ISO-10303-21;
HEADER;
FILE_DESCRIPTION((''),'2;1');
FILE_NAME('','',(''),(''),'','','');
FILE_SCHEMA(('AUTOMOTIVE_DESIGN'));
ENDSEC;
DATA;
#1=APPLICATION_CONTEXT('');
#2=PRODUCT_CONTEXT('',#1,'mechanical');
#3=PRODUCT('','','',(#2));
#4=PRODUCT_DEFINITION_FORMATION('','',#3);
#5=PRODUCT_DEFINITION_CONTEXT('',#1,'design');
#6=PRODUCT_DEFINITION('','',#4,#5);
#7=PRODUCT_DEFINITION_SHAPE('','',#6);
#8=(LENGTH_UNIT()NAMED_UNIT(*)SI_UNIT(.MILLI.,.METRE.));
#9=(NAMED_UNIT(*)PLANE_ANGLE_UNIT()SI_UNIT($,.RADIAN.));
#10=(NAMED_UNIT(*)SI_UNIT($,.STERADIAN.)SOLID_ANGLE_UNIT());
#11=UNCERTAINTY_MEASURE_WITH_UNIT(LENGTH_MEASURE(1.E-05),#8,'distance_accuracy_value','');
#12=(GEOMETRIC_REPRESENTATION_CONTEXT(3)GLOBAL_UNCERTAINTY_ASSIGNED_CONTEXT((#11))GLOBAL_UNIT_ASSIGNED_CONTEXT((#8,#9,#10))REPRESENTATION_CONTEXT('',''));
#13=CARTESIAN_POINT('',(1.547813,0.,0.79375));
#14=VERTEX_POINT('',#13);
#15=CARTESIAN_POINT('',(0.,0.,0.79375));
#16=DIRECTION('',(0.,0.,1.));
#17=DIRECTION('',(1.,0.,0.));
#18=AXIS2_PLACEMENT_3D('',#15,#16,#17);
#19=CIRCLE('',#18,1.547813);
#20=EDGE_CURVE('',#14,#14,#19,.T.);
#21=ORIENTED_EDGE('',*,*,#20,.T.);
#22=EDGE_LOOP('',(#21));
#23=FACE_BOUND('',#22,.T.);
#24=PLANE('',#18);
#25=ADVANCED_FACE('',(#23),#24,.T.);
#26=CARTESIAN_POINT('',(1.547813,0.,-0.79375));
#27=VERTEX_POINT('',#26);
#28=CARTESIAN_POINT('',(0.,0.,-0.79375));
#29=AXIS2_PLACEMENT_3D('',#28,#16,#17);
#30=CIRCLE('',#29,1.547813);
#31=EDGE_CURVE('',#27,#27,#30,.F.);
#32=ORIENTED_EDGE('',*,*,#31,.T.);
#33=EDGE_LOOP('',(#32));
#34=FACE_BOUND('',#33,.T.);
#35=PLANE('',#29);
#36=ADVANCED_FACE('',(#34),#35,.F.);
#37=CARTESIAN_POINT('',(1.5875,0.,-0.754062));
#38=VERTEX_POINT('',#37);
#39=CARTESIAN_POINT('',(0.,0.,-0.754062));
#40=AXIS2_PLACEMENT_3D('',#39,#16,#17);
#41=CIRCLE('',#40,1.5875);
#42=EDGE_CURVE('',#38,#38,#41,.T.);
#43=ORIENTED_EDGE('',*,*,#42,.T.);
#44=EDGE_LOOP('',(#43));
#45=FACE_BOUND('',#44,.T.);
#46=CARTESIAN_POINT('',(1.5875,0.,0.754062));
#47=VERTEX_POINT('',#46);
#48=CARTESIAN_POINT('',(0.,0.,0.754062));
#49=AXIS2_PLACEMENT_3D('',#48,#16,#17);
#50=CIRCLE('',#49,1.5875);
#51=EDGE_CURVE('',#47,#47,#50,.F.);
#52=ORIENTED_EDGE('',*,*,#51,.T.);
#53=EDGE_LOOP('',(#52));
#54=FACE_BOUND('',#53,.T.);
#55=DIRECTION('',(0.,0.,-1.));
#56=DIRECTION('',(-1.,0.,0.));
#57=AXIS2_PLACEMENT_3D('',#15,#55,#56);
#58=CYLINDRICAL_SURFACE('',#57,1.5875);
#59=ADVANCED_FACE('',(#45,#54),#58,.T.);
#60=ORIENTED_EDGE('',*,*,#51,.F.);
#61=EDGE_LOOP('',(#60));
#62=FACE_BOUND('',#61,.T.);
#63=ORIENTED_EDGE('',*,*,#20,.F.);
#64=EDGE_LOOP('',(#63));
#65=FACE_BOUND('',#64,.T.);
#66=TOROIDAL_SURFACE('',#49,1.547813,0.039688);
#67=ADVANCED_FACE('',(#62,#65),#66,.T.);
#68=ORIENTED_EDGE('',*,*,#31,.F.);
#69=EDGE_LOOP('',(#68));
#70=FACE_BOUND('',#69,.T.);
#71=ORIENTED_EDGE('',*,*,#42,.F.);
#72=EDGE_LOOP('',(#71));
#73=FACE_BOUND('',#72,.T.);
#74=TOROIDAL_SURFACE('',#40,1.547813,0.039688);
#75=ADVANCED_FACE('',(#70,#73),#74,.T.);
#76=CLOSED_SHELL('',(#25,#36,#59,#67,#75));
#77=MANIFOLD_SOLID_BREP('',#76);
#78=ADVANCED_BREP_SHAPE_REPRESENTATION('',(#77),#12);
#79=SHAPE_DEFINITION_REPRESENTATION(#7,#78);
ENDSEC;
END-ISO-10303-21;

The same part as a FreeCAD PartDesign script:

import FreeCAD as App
import Part
import Sketcher

V = App.Vector
Q = App.Units.Quantity


def edges_at(feature, points):
    """Names of the edges that pass closest to the given points."""
    edges = feature.Shape.Edges
    near = lambda p: min(range(len(edges)), key=lambda i: edges[i].distToShape(Part.Vertex(*p))[0])
    return sorted({f"Edge{near(p) + 1}" for p in points})

doc = App.newDocument("Part")
body = doc.addObject("PartDesign::Body", "Body")

# Sketch on XY plane
sketch1 = body.newObject("Sketcher::SketchObject", "Sketch")
sketch1.AttachmentSupport = (doc.getObject("XY_Plane"), [""])
sketch1.MapMode = "FlatFace"
sketch1.addGeometry(Part.Circle(V(0, 0, 0), V(0, 0, 1), 1.6), False)
sketch1.addConstraint(Sketcher.Constraint("Coincident", 0, 3, -1, 1))
sketch1.addConstraint(Sketcher.Constraint("Diameter", 0, Q("0.125 in")))
pad1 = body.newObject("PartDesign::Pad", "Pad")
pad1.Profile = sketch1
pad1.Type = "TwoLengths"
pad1.Length = Q("0.03125 in")
pad1.Length2 = Q("0.03125 in")
doc.recompute()

fillet = body.newObject("PartDesign::Fillet", "Fillet")
fillet.Base = (pad1, edges_at(pad1, [(-1.587, 0, -0.794), (-1.587, 0, 0.794)]))
fillet.Radius = 0.039688

doc.recompute()
